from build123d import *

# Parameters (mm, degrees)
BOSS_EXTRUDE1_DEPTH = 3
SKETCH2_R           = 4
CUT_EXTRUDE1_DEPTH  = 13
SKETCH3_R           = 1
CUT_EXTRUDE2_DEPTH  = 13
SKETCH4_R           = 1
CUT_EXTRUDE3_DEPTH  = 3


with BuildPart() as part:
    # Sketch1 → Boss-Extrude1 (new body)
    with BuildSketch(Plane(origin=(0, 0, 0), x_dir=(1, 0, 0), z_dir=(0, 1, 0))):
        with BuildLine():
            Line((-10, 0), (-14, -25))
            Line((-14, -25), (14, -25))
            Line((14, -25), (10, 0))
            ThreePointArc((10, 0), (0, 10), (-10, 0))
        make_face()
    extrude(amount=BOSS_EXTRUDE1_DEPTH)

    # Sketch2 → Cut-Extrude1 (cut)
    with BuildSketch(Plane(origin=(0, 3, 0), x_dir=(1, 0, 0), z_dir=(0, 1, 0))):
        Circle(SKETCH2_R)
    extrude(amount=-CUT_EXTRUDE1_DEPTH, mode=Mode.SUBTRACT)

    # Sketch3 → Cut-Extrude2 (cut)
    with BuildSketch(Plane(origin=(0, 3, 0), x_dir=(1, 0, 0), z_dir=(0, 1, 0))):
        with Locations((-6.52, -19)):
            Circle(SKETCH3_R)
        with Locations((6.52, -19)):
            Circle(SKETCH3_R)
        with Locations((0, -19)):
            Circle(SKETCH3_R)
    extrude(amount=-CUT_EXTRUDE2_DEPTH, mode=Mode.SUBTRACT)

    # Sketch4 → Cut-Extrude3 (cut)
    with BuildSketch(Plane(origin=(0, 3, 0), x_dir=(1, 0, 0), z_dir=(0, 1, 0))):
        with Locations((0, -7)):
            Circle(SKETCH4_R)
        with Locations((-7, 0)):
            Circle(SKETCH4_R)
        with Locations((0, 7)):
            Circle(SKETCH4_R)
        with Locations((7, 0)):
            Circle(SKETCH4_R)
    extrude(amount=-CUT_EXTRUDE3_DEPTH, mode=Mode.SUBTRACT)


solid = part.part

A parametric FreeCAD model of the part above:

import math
import FreeCAD as App
import Part
import Sketcher
from FreeCAD import Vector

doc = App.newDocument("Part")
body = doc.addObject("PartDesign::Body", "Body")

sketch1 = body.newObject("Sketcher::SketchObject", "Sketch")
sketch1.AttachmentSupport = (doc.getObject("XZ_Plane"), [""])
sketch1.MapMode = "FlatFace"
sketch1.addGeometry([
    Part.LineSegment(Vector(-10, 0, 0), Vector(-14, 25, 0)),
    Part.LineSegment(Vector(-14, 25, 0), Vector(14, 25, 0)),
    Part.LineSegment(Vector(14, 25, 0), Vector(10, 0, 0)),
    Part.ArcOfCircle(Part.Circle(Vector(0, 0, 0), Vector(0, 0, 1), 10), math.radians(180), math.radians(360)),
], False)
sketch1.addConstraint([
    Sketcher.Constraint("Coincident", 0, 2, 1, 1),
    Sketcher.Constraint("Coincident", 1, 2, 2, 1),
    Sketcher.Constraint("Coincident", 2, 2, 3, 2),
    Sketcher.Constraint("Coincident", 3, 1, 0, 1),
    Sketcher.Constraint("Horizontal", 1),
    Sketcher.Constraint("Coincident", 3, 3, -1, 1),
    Sketcher.Constraint("PointOnObject", 2, 2, -1),
    Sketcher.Constraint("PointOnObject", 3, 1, -1),
    Sketcher.Constraint("Equal", 0, 2),
    Sketcher.Constraint("Radius", 3, 10.0),
    Sketcher.Constraint("DistanceX", 1, 1, 1, 2, 28.0),
    Sketcher.Constraint("DistanceY", -1, 1, 0, 2, 25.0),
])
pad1 = body.newObject("PartDesign::Pad", "Pad")
pad1.Profile = sketch1
pad1.Length = 3
pad1.Reversed = True

sketch2 = body.newObject("Sketcher::SketchObject", "Sketch001")
sketch2.AttachmentSupport = (doc.getObject("XZ_Plane"), [""])
sketch2.MapMode = "FlatFace"
sketch2.AttachmentOffset = App.Placement(Vector(0, 0, -3), App.Rotation())
sketch2.addGeometry(Part.Circle(Vector(0, 0, 0), Vector(0, 0, 1), 4), False)
sketch2.addConstraint([
    Sketcher.Constraint("Coincident", 0, 3, -1, 1),
    Sketcher.Constraint("Diameter", 0, 8.0),
])
pocket1 = body.newObject("PartDesign::Pocket", "Pocket")
pocket1.Profile = sketch2
pocket1.Length = 13
pocket1.Reversed = True

sketch3 = body.newObject("Sketcher::SketchObject", "Sketch002")
sketch3.AttachmentSupport = (doc.getObject("XZ_Plane"), [""])
sketch3.MapMode = "FlatFace"
sketch3.AttachmentOffset = App.Placement(Vector(0, 0, -3), App.Rotation())
sketch3.addGeometry([
    Part.Circle(Vector(-6.5, 19, 0), Vector(0, 0, 1), 1),
    Part.Circle(Vector(6.5, 19, 0), Vector(0, 0, 1), 1),
    Part.Circle(Vector(0, 19, 0), Vector(0, 0, 1), 1),
], False)
sketch3.addConstraint([
    Sketcher.Constraint("Equal", 0, 1),
    Sketcher.Constraint("Equal", 1, 2),
    Sketcher.Constraint("Symmetric", 0, 3, 1, 3, -2),
    Sketcher.Constraint("PointOnObject", 2, 3, -2),
    Sketcher.Constraint("Horizontal", 1, 3, 2, 3),
    Sketcher.Constraint("Diameter", 0, 2.0),
    Sketcher.Constraint("DistanceY", -1, 1, 0, 3, 19.0),
    Sketcher.Constraint("DistanceX", 0, 3, -1, 1, 6.52),
])
pocket2 = body.newObject("PartDesign::Pocket", "Pocket001")
pocket2.Profile = sketch3
pocket2.Length = 13
pocket2.Reversed = True

sketch4 = body.newObject("Sketcher::SketchObject", "Sketch003")
sketch4.AttachmentSupport = (doc.getObject("XZ_Plane"), [""])
sketch4.MapMode = "FlatFace"
sketch4.AttachmentOffset = App.Placement(Vector(0, 0, -3), App.Rotation())
sketch4.addGeometry([
    Part.Circle(Vector(0, 7, 0), Vector(0, 0, 1), 1),
    Part.Circle(Vector(-7, 0, 0), Vector(0, 0, 1), 1),
    Part.Circle(Vector(0, -7, 0), Vector(0, 0, 1), 1),
    Part.Circle(Vector(7, 0, 0), Vector(0, 0, 1), 1),
], False)
sketch4.addConstraint([
    Sketcher.Constraint("Equal", 0, 1),
    Sketcher.Constraint("Equal", 1, 2),
    Sketcher.Constraint("Equal", 2, 3),
    Sketcher.Constraint("Symmetric", 0, 3, 2, 3, -1, 1),
    Sketcher.Constraint("Symmetric", 1, 3, 3, 3, -1, 1),
    Sketcher.Constraint("PointOnObject", 0, 3, -2),
    Sketcher.Constraint("PointOnObject", 1, 3, -1),
    Sketcher.Constraint("Diameter", 0, 2.0),
    Sketcher.Constraint("DistanceY", -1, 1, 0, 3, 7.0),
    Sketcher.Constraint("DistanceX", 1, 3, -1, 1, 7.0),
])
pocket3 = body.newObject("PartDesign::Pocket", "Pocket002")
pocket3.Profile = sketch4
pocket3.Length = 3
pocket3.Reversed = True

doc.recompute()
